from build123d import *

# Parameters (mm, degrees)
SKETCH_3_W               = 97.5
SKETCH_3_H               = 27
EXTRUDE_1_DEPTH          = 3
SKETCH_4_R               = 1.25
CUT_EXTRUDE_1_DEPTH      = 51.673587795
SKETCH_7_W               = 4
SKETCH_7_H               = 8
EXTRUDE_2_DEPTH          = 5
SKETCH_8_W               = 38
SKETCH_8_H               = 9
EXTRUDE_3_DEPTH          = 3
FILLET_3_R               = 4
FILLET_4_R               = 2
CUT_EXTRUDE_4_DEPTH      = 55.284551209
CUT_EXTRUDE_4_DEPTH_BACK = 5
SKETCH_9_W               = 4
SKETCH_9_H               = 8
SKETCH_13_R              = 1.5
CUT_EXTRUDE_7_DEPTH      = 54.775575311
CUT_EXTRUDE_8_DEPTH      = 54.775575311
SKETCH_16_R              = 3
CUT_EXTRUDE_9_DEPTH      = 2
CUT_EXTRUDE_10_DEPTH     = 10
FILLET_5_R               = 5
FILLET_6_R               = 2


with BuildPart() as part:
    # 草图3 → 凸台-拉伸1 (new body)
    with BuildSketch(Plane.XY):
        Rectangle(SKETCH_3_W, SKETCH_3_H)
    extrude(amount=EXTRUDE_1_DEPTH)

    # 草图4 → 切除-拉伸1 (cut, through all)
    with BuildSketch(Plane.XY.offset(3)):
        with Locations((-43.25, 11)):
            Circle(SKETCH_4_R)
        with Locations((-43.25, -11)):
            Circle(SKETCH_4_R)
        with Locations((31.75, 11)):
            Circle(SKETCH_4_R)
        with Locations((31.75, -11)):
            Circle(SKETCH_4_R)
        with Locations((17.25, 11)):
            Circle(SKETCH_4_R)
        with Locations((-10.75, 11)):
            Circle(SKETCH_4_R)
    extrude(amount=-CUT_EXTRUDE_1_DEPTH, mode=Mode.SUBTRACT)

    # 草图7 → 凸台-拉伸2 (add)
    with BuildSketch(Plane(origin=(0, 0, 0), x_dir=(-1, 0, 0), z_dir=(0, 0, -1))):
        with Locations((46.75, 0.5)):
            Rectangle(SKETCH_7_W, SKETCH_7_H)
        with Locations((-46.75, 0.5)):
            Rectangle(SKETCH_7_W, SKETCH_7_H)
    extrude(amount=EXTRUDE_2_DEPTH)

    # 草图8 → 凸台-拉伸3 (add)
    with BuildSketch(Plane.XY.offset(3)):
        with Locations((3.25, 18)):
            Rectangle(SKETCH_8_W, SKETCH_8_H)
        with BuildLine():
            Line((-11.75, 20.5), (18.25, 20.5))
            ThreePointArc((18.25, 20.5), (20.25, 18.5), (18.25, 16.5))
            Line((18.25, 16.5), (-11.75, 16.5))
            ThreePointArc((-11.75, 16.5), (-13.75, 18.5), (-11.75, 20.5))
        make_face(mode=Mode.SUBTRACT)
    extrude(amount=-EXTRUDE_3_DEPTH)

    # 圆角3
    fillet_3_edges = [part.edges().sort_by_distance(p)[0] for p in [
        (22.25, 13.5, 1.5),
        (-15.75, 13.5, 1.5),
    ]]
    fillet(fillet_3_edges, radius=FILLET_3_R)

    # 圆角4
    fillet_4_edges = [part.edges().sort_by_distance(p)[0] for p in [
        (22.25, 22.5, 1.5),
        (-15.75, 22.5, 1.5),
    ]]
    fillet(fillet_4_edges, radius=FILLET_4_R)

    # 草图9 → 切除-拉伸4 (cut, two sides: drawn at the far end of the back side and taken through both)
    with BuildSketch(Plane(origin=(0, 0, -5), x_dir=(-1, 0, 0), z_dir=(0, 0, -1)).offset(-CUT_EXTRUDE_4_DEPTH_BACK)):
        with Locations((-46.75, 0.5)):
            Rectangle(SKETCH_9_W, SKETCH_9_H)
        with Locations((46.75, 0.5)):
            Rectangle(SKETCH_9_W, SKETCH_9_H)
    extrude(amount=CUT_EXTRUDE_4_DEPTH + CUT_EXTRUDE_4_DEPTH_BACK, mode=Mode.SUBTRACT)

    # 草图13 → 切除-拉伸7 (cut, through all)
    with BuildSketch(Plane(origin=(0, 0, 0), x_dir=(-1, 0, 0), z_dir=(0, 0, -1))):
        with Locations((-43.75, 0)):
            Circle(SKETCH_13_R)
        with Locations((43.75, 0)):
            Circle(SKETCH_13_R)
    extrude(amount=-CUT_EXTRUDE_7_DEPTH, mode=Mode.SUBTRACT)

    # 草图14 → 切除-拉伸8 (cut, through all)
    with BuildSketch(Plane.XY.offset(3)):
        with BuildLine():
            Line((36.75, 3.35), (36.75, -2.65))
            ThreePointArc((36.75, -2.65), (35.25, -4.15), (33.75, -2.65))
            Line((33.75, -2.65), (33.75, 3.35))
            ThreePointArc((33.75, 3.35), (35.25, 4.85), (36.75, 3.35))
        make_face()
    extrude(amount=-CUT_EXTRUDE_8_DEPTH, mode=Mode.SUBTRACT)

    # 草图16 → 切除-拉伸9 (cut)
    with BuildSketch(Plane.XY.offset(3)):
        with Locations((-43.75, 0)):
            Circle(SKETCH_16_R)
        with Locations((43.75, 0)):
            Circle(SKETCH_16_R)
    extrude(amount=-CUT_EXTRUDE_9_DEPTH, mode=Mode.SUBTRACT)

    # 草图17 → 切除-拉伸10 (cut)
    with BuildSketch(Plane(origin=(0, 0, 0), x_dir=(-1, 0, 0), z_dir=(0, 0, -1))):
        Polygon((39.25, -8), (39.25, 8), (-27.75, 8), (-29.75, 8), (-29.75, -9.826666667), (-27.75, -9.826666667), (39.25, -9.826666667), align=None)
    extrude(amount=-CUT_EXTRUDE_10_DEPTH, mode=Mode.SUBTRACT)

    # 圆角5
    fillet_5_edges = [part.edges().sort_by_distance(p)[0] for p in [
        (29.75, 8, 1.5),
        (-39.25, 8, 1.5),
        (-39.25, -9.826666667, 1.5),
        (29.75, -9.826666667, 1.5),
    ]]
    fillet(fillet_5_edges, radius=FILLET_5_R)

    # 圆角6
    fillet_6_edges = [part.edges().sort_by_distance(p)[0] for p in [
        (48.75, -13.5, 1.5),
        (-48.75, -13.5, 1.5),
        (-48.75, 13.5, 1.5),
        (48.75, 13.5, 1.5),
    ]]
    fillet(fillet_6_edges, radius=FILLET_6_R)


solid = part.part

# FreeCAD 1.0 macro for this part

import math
import FreeCAD as App
import Part
import Sketcher
Q = App.Units.Quantity


def edges_at(feature, points):
    """Names of the edges that pass closest to the given points."""
    edges = feature.Shape.Edges
    near = lambda p: min(range(len(edges)), key=lambda i: edges[i].distToShape(Part.Vertex(*p))[0])
    return sorted({f"Edge{near(p) + 1}" for p in points})

doc = App.newDocument("Part")
params = doc.addObject("Spreadsheet::Sheet", "Params")
for row, (alias, value) in enumerate([
    ("sketch1_height", "27 mm"),
    ("sketch1_width", "97.5 mm"),
    ("pad1_length", "3 mm"),
    ("sketch2_diameter", "2.5 mm"),
    ("sketch3_width", "4 mm"),
    ("sketch3_height", "8 mm"),
    ("pad2_length", "5 mm"),
    ("sketch4_radius", "2 mm"),
    ("sketch4_width", "38 mm"),
    ("sketch4_width2", "30 mm"),
    ("sketch4_height", "9 mm"),
    ("pad3_length", "3 mm"),
    ("fillet_radius", "4 mm"),
    ("fillet2_radius", "2 mm"),
    ("sketch5_width", "4 mm"),
    ("sketch5_height", "8 mm"),
    ("pocket2_length", "55.284551 mm"),
    ("pocket2_length2", "5 mm"),
    ("sketch6_diameter", "3 mm"),
    ("sketch7_radius", "1.5 mm"),
    ("sketch7_height", "6 mm"),
    ("sketch8_diameter", "6 mm"),
    ("pocket5_length", "2 mm"),
    ("sketch9_width", "69 mm"),
    ("pocket6_length", "10 mm"),
    ("fillet3_radius", "5 mm"),
    ("fillet4_radius", "2 mm"),
], start=1):
    params.set(f"A{row}", alias)
    params.set(f"B{row}", "=" + value)
    params.setAlias(f"B{row}", alias)

body = doc.addObject("PartDesign::Body", "Body")

# Sketch on XY plane
sketch1 = doc.addObject("Sketcher::SketchObject", "Sketch")
body.addObject(sketch1)
sketch1.AttachmentSupport = (doc.XY_Plane, [""])
sketch1.MapMode = "FlatFace"
sketch1.addGeometry(Part.LineSegment(App.Vector(-49, 14, 0), App.Vector(-49, -14, 0)), False)
sketch1.addGeometry(Part.LineSegment(App.Vector(-49, -14, 0), App.Vector(49, -14, 0)), False)
sketch1.addGeometry(Part.LineSegment(App.Vector(49, -14, 0), App.Vector(49, 14, 0)), False)
sketch1.addGeometry(Part.LineSegment(App.Vector(49, 14, 0), App.Vector(-49, 14, 0)), False)
sketch1.addConstraint(Sketcher.Constraint("Coincident", 0, 2, 1, 1))
sketch1.addConstraint(Sketcher.Constraint("Coincident", 1, 2, 2, 1))
sketch1.addConstraint(Sketcher.Constraint("Coincident", 2, 2, 3, 1))
sketch1.addConstraint(Sketcher.Constraint("Coincident", 3, 2, 0, 1))
sketch1.addConstraint(Sketcher.Constraint("Vertical", 0))
sketch1.addConstraint(Sketcher.Constraint("Horizontal", 1))
sketch1.addConstraint(Sketcher.Constraint("Vertical", 2))
sketch1.addConstraint(Sketcher.Constraint("Horizontal", 3))
sketch1.addConstraint(Sketcher.Constraint("Symmetric", 0, 2, 2, 2, -1, 1))
sketch1.addConstraint(Sketcher.Constraint("DistanceY", 0, 2, 0, 1, Q("27 mm")))
sketch1.addConstraint(Sketcher.Constraint("DistanceX", 1, 1, 1, 2, Q("97.5 mm")))
sketch1.setExpression("Constraints[9]", "Params.sketch1_height")
sketch1.setExpression("Constraints[10]", "Params.sketch1_width")
pad1 = doc.addObject("PartDesign::Pad", "Pad")
body.addObject(pad1)
pad1.Profile = sketch1
pad1.setExpression("Length", "Params.pad1_length")

# Sketch on XY plane
sketch2 = doc.addObject("Sketcher::SketchObject", "Sketch001")
body.addObject(sketch2)
sketch2.AttachmentSupport = (doc.XY_Plane, [""])
sketch2.MapMode = "FlatFace"
sketch2.AttachmentOffset = App.Placement(App.Vector(0, 0, 3), App.Rotation())
sketch2.addGeometry(Part.Circle(App.Vector(-43.2, 11, 0), App.Vector(0, 0, 1), 1.2), False)
sketch2.addGeometry(Part.Circle(App.Vector(-43.2, -11, 0), App.Vector(0, 0, 1), 1.2), False)
sketch2.addGeometry(Part.Circle(App.Vector(31.8, 11, 0), App.Vector(0, 0, 1), 1.2), False)
sketch2.addGeometry(Part.Circle(App.Vector(31.8, -11, 0), App.Vector(0, 0, 1), 1.2), False)
sketch2.addGeometry(Part.Circle(App.Vector(17.2, 11, 0), App.Vector(0, 0, 1), 1.2), False)
sketch2.addGeometry(Part.Circle(App.Vector(-10.8, 11, 0), App.Vector(0, 0, 1), 1.2), False)
sketch2.addConstraint(Sketcher.Constraint("Equal", 0, 1))
sketch2.addConstraint(Sketcher.Constraint("Equal", 1, 2))
sketch2.addConstraint(Sketcher.Constraint("Equal", 2, 3))
sketch2.addConstraint(Sketcher.Constraint("Equal", 3, 4))
sketch2.addConstraint(Sketcher.Constraint("Equal", 4, 5))
sketch2.addConstraint(Sketcher.Constraint("Symmetric", 0, 3, 1, 3, -1))
sketch2.addConstraint(Sketcher.Constraint("Symmetric", 2, 3, 3, 3, -1))
sketch2.addConstraint(Sketcher.Constraint("Horizontal", 0, 3, 2, 3))
sketch2.addConstraint(Sketcher.Constraint("Horizontal", 2, 3, 4, 3))
sketch2.addConstraint(Sketcher.Constraint("Horizontal", 4, 3, 5, 3))
sketch2.addConstraint(Sketcher.Constraint("Diameter", 0, Q("2.5 mm")))
sketch2.addConstraint(Sketcher.Constraint("DistanceY", -1, 1, 0, 3, Q("11 mm")))
sketch2.addConstraint(Sketcher.Constraint("DistanceX", 0, 3, 2, 3, Q("75 mm")))
sketch2.addConstraint(Sketcher.Constraint("DistanceX", 5, 3, 4, 3, Q("28 mm")))
sketch2.addConstraint(Sketcher.Constraint("DistanceX", 4, 3, 2, 3, Q("14.5 mm")))
sketch2.addConstraint(Sketcher.Constraint("DistanceX", 0, 3, -1, 1, Q("43.25 mm")))
sketch2.setExpression("Constraints[10]", "Params.sketch2_diameter")
pocket1 = doc.addObject("PartDesign::Pocket", "Pocket")
body.addObject(pocket1)
pocket1.Profile = sketch2
pocket1.Type = "ThroughAll"

# Sketch on XY plane
sketch3 = doc.addObject("Sketcher::SketchObject", "Sketch002")
body.addObject(sketch3)
sketch3.AttachmentSupport = (doc.XY_Plane, [""])
sketch3.MapMode = "FlatFace"
sketch3.addGeometry(Part.LineSegment(App.Vector(-44.8, 4.5, 0), App.Vector(-44.8, -3.5, 0)), False)
sketch3.addGeometry(Part.LineSegment(App.Vector(-44.8, -3.5, 0), App.Vector(-48.8, -3.5, 0)), False)
sketch3.addGeometry(Part.LineSegment(App.Vector(-48.8, -3.5, 0), App.Vector(-48.8, 4.5, 0)), False)
sketch3.addGeometry(Part.LineSegment(App.Vector(-48.8, 4.5, 0), App.Vector(-44.8, 4.5, 0)), False)
sketch3.addGeometry(Part.LineSegment(App.Vector(48.8, 4.5, 0), App.Vector(48.8, -3.5, 0)), False)
sketch3.addGeometry(Part.LineSegment(App.Vector(48.8, -3.5, 0), App.Vector(44.8, -3.5, 0)), False)
sketch3.addGeometry(Part.LineSegment(App.Vector(44.8, -3.5, 0), App.Vector(44.8, 4.5, 0)), False)
sketch3.addGeometry(Part.LineSegment(App.Vector(44.8, 4.5, 0), App.Vector(48.8, 4.5, 0)), False)
sketch3.addConstraint(Sketcher.Constraint("Coincident", 0, 2, 1, 1))
sketch3.addConstraint(Sketcher.Constraint("Coincident", 1, 2, 2, 1))
sketch3.addConstraint(Sketcher.Constraint("Coincident", 2, 2, 3, 1))
sketch3.addConstraint(Sketcher.Constraint("Coincident", 3, 2, 0, 1))
sketch3.addConstraint(Sketcher.Constraint("Coincident", 4, 2, 5, 1))
sketch3.addConstraint(Sketcher.Constraint("Coincident", 5, 2, 6, 1))
sketch3.addConstraint(Sketcher.Constraint("Coincident", 6, 2, 7, 1))
sketch3.addConstraint(Sketcher.Constraint("Coincident", 7, 2, 4, 1))
sketch3.addConstraint(Sketcher.Constraint("Vertical", 0))
sketch3.addConstraint(Sketcher.Constraint("Horizontal", 1))
sketch3.addConstraint(Sketcher.Constraint("Vertical", 2))
sketch3.addConstraint(Sketcher.Constraint("Horizontal", 3))
sketch3.addConstraint(Sketcher.Constraint("Vertical", 4))
sketch3.addConstraint(Sketcher.Constraint("Horizontal", 5))
sketch3.addConstraint(Sketcher.Constraint("Vertical", 6))
sketch3.addConstraint(Sketcher.Constraint("Horizontal", 7))
sketch3.addConstraint(Sketcher.Constraint("Symmetric", 1, 2, 4, 2, -2))
sketch3.addConstraint(Sketcher.Constraint("Symmetric", 3, 2, 6, 2, -2))
sketch3.addConstraint(Sketcher.Constraint("DistanceX", 1, 2, 1, 1, Q("4 mm")))
sketch3.addConstraint(Sketcher.Constraint("DistanceY", 0, 2, 0, 1, Q("8 mm")))
sketch3.addConstraint(Sketcher.Constraint("DistanceY", 0, 2, -1, 1, Q("3.5 mm")))
sketch3.addConstraint(Sketcher.Constraint("DistanceX", 0, 2, 4, 2, Q("93.5 mm")))
sketch3.setExpression("Constraints[18]", "Params.sketch3_width")
sketch3.setExpression("Constraints[19]", "Params.sketch3_height")
pad2 = doc.addObject("PartDesign::Pad", "Pad001")
body.addObject(pad2)
pad2.Profile = sketch3
pad2.setExpression("Length", "Params.pad2_length")
pad2.Reversed = True

# Sketch on XY plane
sketch4 = doc.addObject("Sketcher::SketchObject", "Sketch003")
body.addObject(sketch4)
sketch4.AttachmentSupport = (doc.XY_Plane, [""])
sketch4.MapMode = "FlatFace"
sketch4.AttachmentOffset = App.Placement(App.Vector(0, 0, 3), App.Rotation())
sketch4.addGeometry(Part.LineSegment(App.Vector(-15.8, 22.5, 0), App.Vector(-15.8, 13.5, 0)), False)
sketch4.addGeometry(Part.LineSegment(App.Vector(-15.8, 13.5, 0), App.Vector(22.2, 13.5, 0)), False)
sketch4.addGeometry(Part.LineSegment(App.Vector(22.2, 13.5, 0), App.Vector(22.2, 22.5, 0)), False)
sketch4.addGeometry(Part.LineSegment(App.Vector(22.2, 22.5, 0), App.Vector(-15.8, 22.5, 0)), False)
sketch4.addGeometry(Part.ArcOfCircle(Part.Circle(App.Vector(-11.8, 18.5, 0), App.Vector(0, 0, 1), 2), math.radians(90), math.radians(270)), False)
sketch4.addGeometry(Part.LineSegment(App.Vector(-11.8, 20.5, 0), App.Vector(18.2, 20.5, 0)), False)
sketch4.addGeometry(Part.ArcOfCircle(Part.Circle(App.Vector(18.2, 18.5, 0), App.Vector(0, 0, 1), 2), math.radians(-90), math.radians(90)), False)
sketch4.addGeometry(Part.LineSegment(App.Vector(18.2, 16.5, 0), App.Vector(-11.8, 16.5, 0)), False)
sketch4.addConstraint(Sketcher.Constraint("Coincident", 0, 2, 1, 1))
sketch4.addConstraint(Sketcher.Constraint("Coincident", 1, 2, 2, 1))
sketch4.addConstraint(Sketcher.Constraint("Coincident", 2, 2, 3, 1))
sketch4.addConstraint(Sketcher.Constraint("Coincident", 3, 2, 0, 1))
sketch4.addConstraint(Sketcher.Constraint("Tangent", 4, 1, 5, 1))
sketch4.addConstraint(Sketcher.Constraint("Tangent", 5, 2, 6, 2))
sketch4.addConstraint(Sketcher.Constraint("Tangent", 6, 1, 7, 1))
sketch4.addConstraint(Sketcher.Constraint("Tangent", 7, 2, 4, 2))
sketch4.addConstraint(Sketcher.Constraint("Vertical", 0))
sketch4.addConstraint(Sketcher.Constraint("Horizontal", 1))
sketch4.addConstraint(Sketcher.Constraint("Vertical", 2))
sketch4.addConstraint(Sketcher.Constraint("Horizontal", 3))
sketch4.addConstraint(Sketcher.Constraint("Horizontal", 5))
sketch4.addConstraint(Sketcher.Constraint("Horizontal", 7))
sketch4.addConstraint(Sketcher.Constraint("Radius", 4, Q("2 mm")))
sketch4.addConstraint(Sketcher.Constraint("DistanceX", 1, 1, 1, 2, Q("38 mm")))
sketch4.addConstraint(Sketcher.Constraint("DistanceX", 5, 1, 5, 2, Q("30 mm")))
sketch4.addConstraint(Sketcher.Constraint("DistanceY", 0, 2, 0, 1, Q("9 mm")))
sketch4.addConstraint(Sketcher.Constraint("DistanceX", 0, 2, 4, 3, Q("4 mm")))
sketch4.addConstraint(Sketcher.Constraint("DistanceY", 0, 2, 4, 3, Q("5 mm")))
sketch4.addConstraint(Sketcher.Constraint("DistanceY", -1, 1, 4, 3, Q("18.5 mm")))
sketch4.addConstraint(Sketcher.Constraint("DistanceX", 4, 3, -1, 1, Q("11.75 mm")))
sketch4.setExpression("Constraints[14]", "Params.sketch4_radius")
sketch4.setExpression("Constraints[15]", "Params.sketch4_width")
sketch4.setExpression("Constraints[16]", "Params.sketch4_width2")
sketch4.setExpression("Constraints[17]", "Params.sketch4_height")
pad3 = doc.addObject("PartDesign::Pad", "Pad002")
body.addObject(pad3)
pad3.Profile = sketch4
pad3.setExpression("Length", "Params.pad3_length")
pad3.Reversed = True
doc.recompute()

fillet = doc.addObject("PartDesign::Fillet", "Fillet")
body.addObject(fillet)
fillet.Base = (pad3, edges_at(pad3, [(22.25, 13.5, 1.5), (-15.75, 13.5, 1.5)]))
fillet.setExpression("Radius", "Params.fillet_radius")
doc.recompute()

fillet2 = doc.addObject("PartDesign::Fillet", "Fillet001")
body.addObject(fillet2)
fillet2.Base = (fillet, edges_at(fillet, [(22.25, 22.5, 1.5), (-15.75, 22.5, 1.5)]))
fillet2.setExpression("Radius", "Params.fillet2_radius")

# Sketch on XY plane
sketch5 = doc.addObject("Sketcher::SketchObject", "Sketch004")
body.addObject(sketch5)
sketch5.AttachmentSupport = (doc.XY_Plane, [""])
sketch5.MapMode = "FlatFace"
sketch5.AttachmentOffset = App.Placement(App.Vector(0, 0, -5), App.Rotation())
sketch5.addGeometry(Part.LineSegment(App.Vector(48.8, 4.5, 0), App.Vector(48.8, -3.5, 0)), False)
sketch5.addGeometry(Part.LineSegment(App.Vector(48.8, -3.5, 0), App.Vector(44.8, -3.5, 0)), False)
sketch5.addGeometry(Part.LineSegment(App.Vector(44.8, -3.5, 0), App.Vector(44.8, 4.5, 0)), False)
sketch5.addGeometry(Part.LineSegment(App.Vector(44.8, 4.5, 0), App.Vector(48.8, 4.5, 0)), False)
sketch5.addGeometry(Part.LineSegment(App.Vector(-44.8, 4.5, 0), App.Vector(-44.8, -3.5, 0)), False)
sketch5.addGeometry(Part.LineSegment(App.Vector(-44.8, -3.5, 0), App.Vector(-48.8, -3.5, 0)), False)
sketch5.addGeometry(Part.LineSegment(App.Vector(-48.8, -3.5, 0), App.Vector(-48.8, 4.5, 0)), False)
sketch5.addGeometry(Part.LineSegment(App.Vector(-48.8, 4.5, 0), App.Vector(-44.8, 4.5, 0)), False)
sketch5.addConstraint(Sketcher.Constraint("Coincident", 0, 2, 1, 1))
sketch5.addConstraint(Sketcher.Constraint("Coincident", 1, 2, 2, 1))
sketch5.addConstraint(Sketcher.Constraint("Coincident", 2, 2, 3, 1))
sketch5.addConstraint(Sketcher.Constraint("Coincident", 3, 2, 0, 1))
sketch5.addConstraint(Sketcher.Constraint("Coincident", 4, 2, 5, 1))
sketch5.addConstraint(Sketcher.Constraint("Coincident", 5, 2, 6, 1))
sketch5.addConstraint(Sketcher.Constraint("Coincident", 6, 2, 7, 1))
sketch5.addConstraint(Sketcher.Constraint("Coincident", 7, 2, 4, 1))
sketch5.addConstraint(Sketcher.Constraint("Vertical", 0))
sketch5.addConstraint(Sketcher.Constraint("Horizontal", 1))
sketch5.addConstraint(Sketcher.Constraint("Vertical", 2))
sketch5.addConstraint(Sketcher.Constraint("Horizontal", 3))
sketch5.addConstraint(Sketcher.Constraint("Vertical", 4))
sketch5.addConstraint(Sketcher.Constraint("Horizontal", 5))
sketch5.addConstraint(Sketcher.Constraint("Vertical", 6))
sketch5.addConstraint(Sketcher.Constraint("Horizontal", 7))
sketch5.addConstraint(Sketcher.Constraint("Symmetric", 1, 2, 4, 2, -2))
sketch5.addConstraint(Sketcher.Constraint("Symmetric", 3, 2, 6, 2, -2))
sketch5.addConstraint(Sketcher.Constraint("DistanceX", 1, 2, 1, 1, Q("4 mm")))
sketch5.addConstraint(Sketcher.Constraint("DistanceY", 0, 2, 0, 1, Q("8 mm")))
sketch5.addConstraint(Sketcher.Constraint("DistanceY", 0, 2, -1, 1, Q("3.5 mm")))
sketch5.addConstraint(Sketcher.Constraint("DistanceX", 4, 2, 1, 2, Q("89.5 mm")))
sketch5.setExpression("Constraints[18]", "Params.sketch5_width")
sketch5.setExpression("Constraints[19]", "Params.sketch5_height")
pocket2 = doc.addObject("PartDesign::Pocket", "Pocket001")
body.addObject(pocket2)
pocket2.Profile = sketch5
pocket2.Type = "TwoLengths"
pocket2.setExpression("Length", "Params.pocket2_length")
pocket2.setExpression("Length2", "Params.pocket2_length2")

# Sketch on XY plane
sketch6 = doc.addObject("Sketcher::SketchObject", "Sketch005")
body.addObject(sketch6)
sketch6.AttachmentSupport = (doc.XY_Plane, [""])
sketch6.MapMode = "FlatFace"
sketch6.addGeometry(Part.Circle(App.Vector(43.8, 0, 0), App.Vector(0, 0, 1), 1.5), False)
sketch6.addGeometry(Part.Circle(App.Vector(-43.8, 0, 0), App.Vector(0, 0, 1), 1.5), False)
sketch6.addConstraint(Sketcher.Constraint("Equal", 0, 1))
sketch6.addConstraint(Sketcher.Constraint("Symmetric", 0, 3, 1, 3, -1, 1))
sketch6.addConstraint(Sketcher.Constraint("PointOnObject", 0, 3, -1))
sketch6.addConstraint(Sketcher.Constraint("Diameter", 0, Q("3 mm")))
sketch6.addConstraint(Sketcher.Constraint("DistanceX", 1, 3, 0, 3, Q("87.5 mm")))
sketch6.setExpression("Constraints[3]", "Params.sketch6_diameter")
pocket3 = doc.addObject("PartDesign::Pocket", "Pocket002")
body.addObject(pocket3)
pocket3.Profile = sketch6
pocket3.Type = "ThroughAll"
pocket3.Reversed = True

# Sketch on XY plane
sketch7 = doc.addObject("Sketcher::SketchObject", "Sketch006")
body.addObject(sketch7)
sketch7.AttachmentSupport = (doc.XY_Plane, [""])
sketch7.MapMode = "FlatFace"
sketch7.AttachmentOffset = App.Placement(App.Vector(0, 0, 3), App.Rotation())
sketch7.addGeometry(Part.LineSegment(App.Vector(36.8, -2.6, 0), App.Vector(36.8, 3.4, 0)), False)
sketch7.addGeometry(Part.ArcOfCircle(Part.Circle(App.Vector(35.2, 3.4, 0), App.Vector(0, 0, 1), 1.5), math.radians(0), math.radians(180)), False)
sketch7.addGeometry(Part.LineSegment(App.Vector(33.8, 3.4, 0), App.Vector(33.8, -2.6, 0)), False)
sketch7.addGeometry(Part.ArcOfCircle(Part.Circle(App.Vector(35.2, -2.6, 0), App.Vector(0, 0, 1), 1.5), math.radians(180), math.radians(360)), False)
sketch7.addConstraint(Sketcher.Constraint("Tangent", 0, 2, 1, 1))
sketch7.addConstraint(Sketcher.Constraint("Tangent", 1, 2, 2, 1))
sketch7.addConstraint(Sketcher.Constraint("Tangent", 2, 2, 3, 1))
sketch7.addConstraint(Sketcher.Constraint("Tangent", 3, 2, 0, 1))
sketch7.addConstraint(Sketcher.Constraint("Vertical", 0))
sketch7.addConstraint(Sketcher.Constraint("Vertical", 2))
sketch7.addConstraint(Sketcher.Constraint("Radius", 1, Q("1.5 mm")))
sketch7.addConstraint(Sketcher.Constraint("DistanceY", 0, 1, 0, 2, Q("6 mm")))
sketch7.addConstraint(Sketcher.Constraint("DistanceX", -1, 1, 1, 3, Q("35.25 mm")))
sketch7.addConstraint(Sketcher.Constraint("DistanceY", -1, 1, 1, 3, Q("3.35 mm")))
sketch7.setExpression("Constraints[6]", "Params.sketch7_radius")
sketch7.setExpression("Constraints[7]", "Params.sketch7_height")
pocket4 = doc.addObject("PartDesign::Pocket", "Pocket003")
body.addObject(pocket4)
pocket4.Profile = sketch7
pocket4.Type = "ThroughAll"

# Sketch on XY plane
sketch8 = doc.addObject("Sketcher::SketchObject", "Sketch007")
body.addObject(sketch8)
sketch8.AttachmentSupport = (doc.XY_Plane, [""])
sketch8.MapMode = "FlatFace"
sketch8.AttachmentOffset = App.Placement(App.Vector(0, 0, 3), App.Rotation())
sketch8.addGeometry(Part.Circle(App.Vector(-43.8, 0, 0), App.Vector(0, 0, 1), 3), False)
sketch8.addGeometry(Part.Circle(App.Vector(43.8, 0, 0), App.Vector(0, 0, 1), 3), False)
sketch8.addConstraint(Sketcher.Constraint("Equal", 0, 1))
sketch8.addConstraint(Sketcher.Constraint("Symmetric", 0, 3, 1, 3, -1, 1))
sketch8.addConstraint(Sketcher.Constraint("PointOnObject", 0, 3, -1))
sketch8.addConstraint(Sketcher.Constraint("Diameter", 0, Q("6 mm")))
sketch8.addConstraint(Sketcher.Constraint("DistanceX", 0, 3, 1, 3, Q("87.5 mm")))
sketch8.setExpression("Constraints[3]", "Params.sketch8_diameter")
pocket5 = doc.addObject("PartDesign::Pocket", "Pocket004")
body.addObject(pocket5)
pocket5.Profile = sketch8
pocket5.setExpression("Length", "Params.pocket5_length")

# Sketch on XY plane
sketch9 = doc.addObject("Sketcher::SketchObject", "Sketch008")
body.addObject(sketch9)
sketch9.AttachmentSupport = (doc.XY_Plane, [""])
sketch9.MapMode = "FlatFace"
sketch9.addGeometry(Part.LineSegment(App.Vector(-39, 8, 0), App.Vector(30, 8, 0)), False)
sketch9.addGeometry(Part.LineSegment(App.Vector(30, 8, 0), App.Vector(30, -10, 0)), False)
sketch9.addGeometry(Part.LineSegment(App.Vector(30, -10, 0), App.Vector(-39, -10, 0)), False)
sketch9.addGeometry(Part.LineSegment(App.Vector(-39, -10, 0), App.Vector(-39, 8, 0)), False)
sketch9.addConstraint(Sketcher.Constraint("Coincident", 0, 2, 1, 1))
sketch9.addConstraint(Sketcher.Constraint("Coincident", 1, 2, 2, 1))
sketch9.addConstraint(Sketcher.Constraint("Coincident", 2, 2, 3, 1))
sketch9.addConstraint(Sketcher.Constraint("Coincident", 3, 2, 0, 1))
sketch9.addConstraint(Sketcher.Constraint("Horizontal", 0))
sketch9.addConstraint(Sketcher.Constraint("Vertical", 1))
sketch9.addConstraint(Sketcher.Constraint("Horizontal", 2))
sketch9.addConstraint(Sketcher.Constraint("Vertical", 3))
sketch9.addConstraint(Sketcher.Constraint("DistanceX", 0, 1, 0, 2, Q("69 mm")))
sketch9.addConstraint(Sketcher.Constraint("DistanceY", -1, 1, 0, 2, Q("8 mm")))
sketch9.addConstraint(Sketcher.Constraint("DistanceX", -1, 1, 0, 2, Q("29.75 mm")))
sketch9.addConstraint(Sketcher.Constraint("DistanceY", 1, 2, 1, 1, Q("17.826667 mm")))
sketch9.setExpression("Constraints[8]", "Params.sketch9_width")
pocket6 = doc.addObject("PartDesign::Pocket", "Pocket005")
body.addObject(pocket6)
pocket6.Profile = sketch9
pocket6.setExpression("Length", "Params.pocket6_length")
pocket6.Reversed = True
doc.recompute()

fillet3 = doc.addObject("PartDesign::Fillet", "Fillet002")
body.addObject(fillet3)
fillet3.Base = (pocket6, edges_at(pocket6, [
    (29.75, 8, 1.5),
    (-39.25, 8, 1.5),
    (-39.25, -9.827, 1.5),
    (29.75, -9.827, 1.5),
]))
fillet3.setExpression("Radius", "Params.fillet3_radius")
doc.recompute()

fillet4 = doc.addObject("PartDesign::Fillet", "Fillet003")
body.addObject(fillet4)
fillet4.Base = (fillet3, edges_at(fillet3, [
    (48.75, -13.5, 1.5),
    (-48.75, -13.5, 1.5),
    (-48.75, 13.5, 1.5),
    (48.75, 13.5, 1.5),
]))
fillet4.setExpression("Radius", "Params.fillet4_radius")

doc.recompute()
